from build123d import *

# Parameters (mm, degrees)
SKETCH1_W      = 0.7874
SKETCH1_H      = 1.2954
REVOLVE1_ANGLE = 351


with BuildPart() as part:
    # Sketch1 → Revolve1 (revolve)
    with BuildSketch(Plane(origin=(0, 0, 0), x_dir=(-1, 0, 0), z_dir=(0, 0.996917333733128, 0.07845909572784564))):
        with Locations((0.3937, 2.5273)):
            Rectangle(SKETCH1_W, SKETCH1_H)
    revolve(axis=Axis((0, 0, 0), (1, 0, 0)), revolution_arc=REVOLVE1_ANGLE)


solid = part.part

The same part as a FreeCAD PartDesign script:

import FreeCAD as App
import Part
import Sketcher
from FreeCAD import Vector
Q = App.Units.Quantity


def add_polygon(sketch, points):
    """Adds a closed chain of lines whose ends are joined by coincident constraints."""
    first, n = sketch.GeometryCount, len(points)
    for a, b in zip(points, points[1:] + points[:1]):
        sketch.addGeometry(Part.LineSegment(App.Vector(*a, 0), App.Vector(*b, 0)), False)
    for i in range(n):
        sketch.addConstraint(Sketcher.Constraint("Coincident", first + i, 2, first + (i + 1) % n, 1))

doc = App.newDocument("Part")
body = doc.addObject("PartDesign::Body", "Body")

sketch1 = body.newObject("Sketcher::SketchObject", "Sketch")
sketch1.Placement = App.Placement(Vector(0, 0, 0), App.Rotation(Vector(-1, 0, 0), Vector(0, -0.078459096, 0.996917334), Vector(0, 0.996917334, 0.078459096), "ZXY"))
add_polygon(sketch1, [(0, 3.2), (0, 1.9), (0.8, 1.9), (0.8, 3.2)])
sketch1.addConstraint([
    Sketcher.Constraint("Vertical", 0),
    Sketcher.Constraint("Horizontal", 1),
    Sketcher.Constraint("Vertical", 2),
    Sketcher.Constraint("Horizontal", 3),
    Sketcher.Constraint("PointOnObject", 0, 2, -2),
    Sketcher.Constraint("DistanceX", 1, 1, 1, 2, Q("0.031 in")),
    Sketcher.Constraint("DistanceY", 0, 2, 0, 1, Q("0.051 in")),
    Sketcher.Constraint("DistanceY", -1, 1, 0, 2, Q("0.074 in")),
])
revolution = body.newObject("PartDesign::Revolution", "Revolution")
revolution.Profile = sketch1
revolution.ReferenceAxis = (sketch1, ["H_Axis"])
revolution.Angle = 351
revolution.Reversed = True

doc.recompute()
